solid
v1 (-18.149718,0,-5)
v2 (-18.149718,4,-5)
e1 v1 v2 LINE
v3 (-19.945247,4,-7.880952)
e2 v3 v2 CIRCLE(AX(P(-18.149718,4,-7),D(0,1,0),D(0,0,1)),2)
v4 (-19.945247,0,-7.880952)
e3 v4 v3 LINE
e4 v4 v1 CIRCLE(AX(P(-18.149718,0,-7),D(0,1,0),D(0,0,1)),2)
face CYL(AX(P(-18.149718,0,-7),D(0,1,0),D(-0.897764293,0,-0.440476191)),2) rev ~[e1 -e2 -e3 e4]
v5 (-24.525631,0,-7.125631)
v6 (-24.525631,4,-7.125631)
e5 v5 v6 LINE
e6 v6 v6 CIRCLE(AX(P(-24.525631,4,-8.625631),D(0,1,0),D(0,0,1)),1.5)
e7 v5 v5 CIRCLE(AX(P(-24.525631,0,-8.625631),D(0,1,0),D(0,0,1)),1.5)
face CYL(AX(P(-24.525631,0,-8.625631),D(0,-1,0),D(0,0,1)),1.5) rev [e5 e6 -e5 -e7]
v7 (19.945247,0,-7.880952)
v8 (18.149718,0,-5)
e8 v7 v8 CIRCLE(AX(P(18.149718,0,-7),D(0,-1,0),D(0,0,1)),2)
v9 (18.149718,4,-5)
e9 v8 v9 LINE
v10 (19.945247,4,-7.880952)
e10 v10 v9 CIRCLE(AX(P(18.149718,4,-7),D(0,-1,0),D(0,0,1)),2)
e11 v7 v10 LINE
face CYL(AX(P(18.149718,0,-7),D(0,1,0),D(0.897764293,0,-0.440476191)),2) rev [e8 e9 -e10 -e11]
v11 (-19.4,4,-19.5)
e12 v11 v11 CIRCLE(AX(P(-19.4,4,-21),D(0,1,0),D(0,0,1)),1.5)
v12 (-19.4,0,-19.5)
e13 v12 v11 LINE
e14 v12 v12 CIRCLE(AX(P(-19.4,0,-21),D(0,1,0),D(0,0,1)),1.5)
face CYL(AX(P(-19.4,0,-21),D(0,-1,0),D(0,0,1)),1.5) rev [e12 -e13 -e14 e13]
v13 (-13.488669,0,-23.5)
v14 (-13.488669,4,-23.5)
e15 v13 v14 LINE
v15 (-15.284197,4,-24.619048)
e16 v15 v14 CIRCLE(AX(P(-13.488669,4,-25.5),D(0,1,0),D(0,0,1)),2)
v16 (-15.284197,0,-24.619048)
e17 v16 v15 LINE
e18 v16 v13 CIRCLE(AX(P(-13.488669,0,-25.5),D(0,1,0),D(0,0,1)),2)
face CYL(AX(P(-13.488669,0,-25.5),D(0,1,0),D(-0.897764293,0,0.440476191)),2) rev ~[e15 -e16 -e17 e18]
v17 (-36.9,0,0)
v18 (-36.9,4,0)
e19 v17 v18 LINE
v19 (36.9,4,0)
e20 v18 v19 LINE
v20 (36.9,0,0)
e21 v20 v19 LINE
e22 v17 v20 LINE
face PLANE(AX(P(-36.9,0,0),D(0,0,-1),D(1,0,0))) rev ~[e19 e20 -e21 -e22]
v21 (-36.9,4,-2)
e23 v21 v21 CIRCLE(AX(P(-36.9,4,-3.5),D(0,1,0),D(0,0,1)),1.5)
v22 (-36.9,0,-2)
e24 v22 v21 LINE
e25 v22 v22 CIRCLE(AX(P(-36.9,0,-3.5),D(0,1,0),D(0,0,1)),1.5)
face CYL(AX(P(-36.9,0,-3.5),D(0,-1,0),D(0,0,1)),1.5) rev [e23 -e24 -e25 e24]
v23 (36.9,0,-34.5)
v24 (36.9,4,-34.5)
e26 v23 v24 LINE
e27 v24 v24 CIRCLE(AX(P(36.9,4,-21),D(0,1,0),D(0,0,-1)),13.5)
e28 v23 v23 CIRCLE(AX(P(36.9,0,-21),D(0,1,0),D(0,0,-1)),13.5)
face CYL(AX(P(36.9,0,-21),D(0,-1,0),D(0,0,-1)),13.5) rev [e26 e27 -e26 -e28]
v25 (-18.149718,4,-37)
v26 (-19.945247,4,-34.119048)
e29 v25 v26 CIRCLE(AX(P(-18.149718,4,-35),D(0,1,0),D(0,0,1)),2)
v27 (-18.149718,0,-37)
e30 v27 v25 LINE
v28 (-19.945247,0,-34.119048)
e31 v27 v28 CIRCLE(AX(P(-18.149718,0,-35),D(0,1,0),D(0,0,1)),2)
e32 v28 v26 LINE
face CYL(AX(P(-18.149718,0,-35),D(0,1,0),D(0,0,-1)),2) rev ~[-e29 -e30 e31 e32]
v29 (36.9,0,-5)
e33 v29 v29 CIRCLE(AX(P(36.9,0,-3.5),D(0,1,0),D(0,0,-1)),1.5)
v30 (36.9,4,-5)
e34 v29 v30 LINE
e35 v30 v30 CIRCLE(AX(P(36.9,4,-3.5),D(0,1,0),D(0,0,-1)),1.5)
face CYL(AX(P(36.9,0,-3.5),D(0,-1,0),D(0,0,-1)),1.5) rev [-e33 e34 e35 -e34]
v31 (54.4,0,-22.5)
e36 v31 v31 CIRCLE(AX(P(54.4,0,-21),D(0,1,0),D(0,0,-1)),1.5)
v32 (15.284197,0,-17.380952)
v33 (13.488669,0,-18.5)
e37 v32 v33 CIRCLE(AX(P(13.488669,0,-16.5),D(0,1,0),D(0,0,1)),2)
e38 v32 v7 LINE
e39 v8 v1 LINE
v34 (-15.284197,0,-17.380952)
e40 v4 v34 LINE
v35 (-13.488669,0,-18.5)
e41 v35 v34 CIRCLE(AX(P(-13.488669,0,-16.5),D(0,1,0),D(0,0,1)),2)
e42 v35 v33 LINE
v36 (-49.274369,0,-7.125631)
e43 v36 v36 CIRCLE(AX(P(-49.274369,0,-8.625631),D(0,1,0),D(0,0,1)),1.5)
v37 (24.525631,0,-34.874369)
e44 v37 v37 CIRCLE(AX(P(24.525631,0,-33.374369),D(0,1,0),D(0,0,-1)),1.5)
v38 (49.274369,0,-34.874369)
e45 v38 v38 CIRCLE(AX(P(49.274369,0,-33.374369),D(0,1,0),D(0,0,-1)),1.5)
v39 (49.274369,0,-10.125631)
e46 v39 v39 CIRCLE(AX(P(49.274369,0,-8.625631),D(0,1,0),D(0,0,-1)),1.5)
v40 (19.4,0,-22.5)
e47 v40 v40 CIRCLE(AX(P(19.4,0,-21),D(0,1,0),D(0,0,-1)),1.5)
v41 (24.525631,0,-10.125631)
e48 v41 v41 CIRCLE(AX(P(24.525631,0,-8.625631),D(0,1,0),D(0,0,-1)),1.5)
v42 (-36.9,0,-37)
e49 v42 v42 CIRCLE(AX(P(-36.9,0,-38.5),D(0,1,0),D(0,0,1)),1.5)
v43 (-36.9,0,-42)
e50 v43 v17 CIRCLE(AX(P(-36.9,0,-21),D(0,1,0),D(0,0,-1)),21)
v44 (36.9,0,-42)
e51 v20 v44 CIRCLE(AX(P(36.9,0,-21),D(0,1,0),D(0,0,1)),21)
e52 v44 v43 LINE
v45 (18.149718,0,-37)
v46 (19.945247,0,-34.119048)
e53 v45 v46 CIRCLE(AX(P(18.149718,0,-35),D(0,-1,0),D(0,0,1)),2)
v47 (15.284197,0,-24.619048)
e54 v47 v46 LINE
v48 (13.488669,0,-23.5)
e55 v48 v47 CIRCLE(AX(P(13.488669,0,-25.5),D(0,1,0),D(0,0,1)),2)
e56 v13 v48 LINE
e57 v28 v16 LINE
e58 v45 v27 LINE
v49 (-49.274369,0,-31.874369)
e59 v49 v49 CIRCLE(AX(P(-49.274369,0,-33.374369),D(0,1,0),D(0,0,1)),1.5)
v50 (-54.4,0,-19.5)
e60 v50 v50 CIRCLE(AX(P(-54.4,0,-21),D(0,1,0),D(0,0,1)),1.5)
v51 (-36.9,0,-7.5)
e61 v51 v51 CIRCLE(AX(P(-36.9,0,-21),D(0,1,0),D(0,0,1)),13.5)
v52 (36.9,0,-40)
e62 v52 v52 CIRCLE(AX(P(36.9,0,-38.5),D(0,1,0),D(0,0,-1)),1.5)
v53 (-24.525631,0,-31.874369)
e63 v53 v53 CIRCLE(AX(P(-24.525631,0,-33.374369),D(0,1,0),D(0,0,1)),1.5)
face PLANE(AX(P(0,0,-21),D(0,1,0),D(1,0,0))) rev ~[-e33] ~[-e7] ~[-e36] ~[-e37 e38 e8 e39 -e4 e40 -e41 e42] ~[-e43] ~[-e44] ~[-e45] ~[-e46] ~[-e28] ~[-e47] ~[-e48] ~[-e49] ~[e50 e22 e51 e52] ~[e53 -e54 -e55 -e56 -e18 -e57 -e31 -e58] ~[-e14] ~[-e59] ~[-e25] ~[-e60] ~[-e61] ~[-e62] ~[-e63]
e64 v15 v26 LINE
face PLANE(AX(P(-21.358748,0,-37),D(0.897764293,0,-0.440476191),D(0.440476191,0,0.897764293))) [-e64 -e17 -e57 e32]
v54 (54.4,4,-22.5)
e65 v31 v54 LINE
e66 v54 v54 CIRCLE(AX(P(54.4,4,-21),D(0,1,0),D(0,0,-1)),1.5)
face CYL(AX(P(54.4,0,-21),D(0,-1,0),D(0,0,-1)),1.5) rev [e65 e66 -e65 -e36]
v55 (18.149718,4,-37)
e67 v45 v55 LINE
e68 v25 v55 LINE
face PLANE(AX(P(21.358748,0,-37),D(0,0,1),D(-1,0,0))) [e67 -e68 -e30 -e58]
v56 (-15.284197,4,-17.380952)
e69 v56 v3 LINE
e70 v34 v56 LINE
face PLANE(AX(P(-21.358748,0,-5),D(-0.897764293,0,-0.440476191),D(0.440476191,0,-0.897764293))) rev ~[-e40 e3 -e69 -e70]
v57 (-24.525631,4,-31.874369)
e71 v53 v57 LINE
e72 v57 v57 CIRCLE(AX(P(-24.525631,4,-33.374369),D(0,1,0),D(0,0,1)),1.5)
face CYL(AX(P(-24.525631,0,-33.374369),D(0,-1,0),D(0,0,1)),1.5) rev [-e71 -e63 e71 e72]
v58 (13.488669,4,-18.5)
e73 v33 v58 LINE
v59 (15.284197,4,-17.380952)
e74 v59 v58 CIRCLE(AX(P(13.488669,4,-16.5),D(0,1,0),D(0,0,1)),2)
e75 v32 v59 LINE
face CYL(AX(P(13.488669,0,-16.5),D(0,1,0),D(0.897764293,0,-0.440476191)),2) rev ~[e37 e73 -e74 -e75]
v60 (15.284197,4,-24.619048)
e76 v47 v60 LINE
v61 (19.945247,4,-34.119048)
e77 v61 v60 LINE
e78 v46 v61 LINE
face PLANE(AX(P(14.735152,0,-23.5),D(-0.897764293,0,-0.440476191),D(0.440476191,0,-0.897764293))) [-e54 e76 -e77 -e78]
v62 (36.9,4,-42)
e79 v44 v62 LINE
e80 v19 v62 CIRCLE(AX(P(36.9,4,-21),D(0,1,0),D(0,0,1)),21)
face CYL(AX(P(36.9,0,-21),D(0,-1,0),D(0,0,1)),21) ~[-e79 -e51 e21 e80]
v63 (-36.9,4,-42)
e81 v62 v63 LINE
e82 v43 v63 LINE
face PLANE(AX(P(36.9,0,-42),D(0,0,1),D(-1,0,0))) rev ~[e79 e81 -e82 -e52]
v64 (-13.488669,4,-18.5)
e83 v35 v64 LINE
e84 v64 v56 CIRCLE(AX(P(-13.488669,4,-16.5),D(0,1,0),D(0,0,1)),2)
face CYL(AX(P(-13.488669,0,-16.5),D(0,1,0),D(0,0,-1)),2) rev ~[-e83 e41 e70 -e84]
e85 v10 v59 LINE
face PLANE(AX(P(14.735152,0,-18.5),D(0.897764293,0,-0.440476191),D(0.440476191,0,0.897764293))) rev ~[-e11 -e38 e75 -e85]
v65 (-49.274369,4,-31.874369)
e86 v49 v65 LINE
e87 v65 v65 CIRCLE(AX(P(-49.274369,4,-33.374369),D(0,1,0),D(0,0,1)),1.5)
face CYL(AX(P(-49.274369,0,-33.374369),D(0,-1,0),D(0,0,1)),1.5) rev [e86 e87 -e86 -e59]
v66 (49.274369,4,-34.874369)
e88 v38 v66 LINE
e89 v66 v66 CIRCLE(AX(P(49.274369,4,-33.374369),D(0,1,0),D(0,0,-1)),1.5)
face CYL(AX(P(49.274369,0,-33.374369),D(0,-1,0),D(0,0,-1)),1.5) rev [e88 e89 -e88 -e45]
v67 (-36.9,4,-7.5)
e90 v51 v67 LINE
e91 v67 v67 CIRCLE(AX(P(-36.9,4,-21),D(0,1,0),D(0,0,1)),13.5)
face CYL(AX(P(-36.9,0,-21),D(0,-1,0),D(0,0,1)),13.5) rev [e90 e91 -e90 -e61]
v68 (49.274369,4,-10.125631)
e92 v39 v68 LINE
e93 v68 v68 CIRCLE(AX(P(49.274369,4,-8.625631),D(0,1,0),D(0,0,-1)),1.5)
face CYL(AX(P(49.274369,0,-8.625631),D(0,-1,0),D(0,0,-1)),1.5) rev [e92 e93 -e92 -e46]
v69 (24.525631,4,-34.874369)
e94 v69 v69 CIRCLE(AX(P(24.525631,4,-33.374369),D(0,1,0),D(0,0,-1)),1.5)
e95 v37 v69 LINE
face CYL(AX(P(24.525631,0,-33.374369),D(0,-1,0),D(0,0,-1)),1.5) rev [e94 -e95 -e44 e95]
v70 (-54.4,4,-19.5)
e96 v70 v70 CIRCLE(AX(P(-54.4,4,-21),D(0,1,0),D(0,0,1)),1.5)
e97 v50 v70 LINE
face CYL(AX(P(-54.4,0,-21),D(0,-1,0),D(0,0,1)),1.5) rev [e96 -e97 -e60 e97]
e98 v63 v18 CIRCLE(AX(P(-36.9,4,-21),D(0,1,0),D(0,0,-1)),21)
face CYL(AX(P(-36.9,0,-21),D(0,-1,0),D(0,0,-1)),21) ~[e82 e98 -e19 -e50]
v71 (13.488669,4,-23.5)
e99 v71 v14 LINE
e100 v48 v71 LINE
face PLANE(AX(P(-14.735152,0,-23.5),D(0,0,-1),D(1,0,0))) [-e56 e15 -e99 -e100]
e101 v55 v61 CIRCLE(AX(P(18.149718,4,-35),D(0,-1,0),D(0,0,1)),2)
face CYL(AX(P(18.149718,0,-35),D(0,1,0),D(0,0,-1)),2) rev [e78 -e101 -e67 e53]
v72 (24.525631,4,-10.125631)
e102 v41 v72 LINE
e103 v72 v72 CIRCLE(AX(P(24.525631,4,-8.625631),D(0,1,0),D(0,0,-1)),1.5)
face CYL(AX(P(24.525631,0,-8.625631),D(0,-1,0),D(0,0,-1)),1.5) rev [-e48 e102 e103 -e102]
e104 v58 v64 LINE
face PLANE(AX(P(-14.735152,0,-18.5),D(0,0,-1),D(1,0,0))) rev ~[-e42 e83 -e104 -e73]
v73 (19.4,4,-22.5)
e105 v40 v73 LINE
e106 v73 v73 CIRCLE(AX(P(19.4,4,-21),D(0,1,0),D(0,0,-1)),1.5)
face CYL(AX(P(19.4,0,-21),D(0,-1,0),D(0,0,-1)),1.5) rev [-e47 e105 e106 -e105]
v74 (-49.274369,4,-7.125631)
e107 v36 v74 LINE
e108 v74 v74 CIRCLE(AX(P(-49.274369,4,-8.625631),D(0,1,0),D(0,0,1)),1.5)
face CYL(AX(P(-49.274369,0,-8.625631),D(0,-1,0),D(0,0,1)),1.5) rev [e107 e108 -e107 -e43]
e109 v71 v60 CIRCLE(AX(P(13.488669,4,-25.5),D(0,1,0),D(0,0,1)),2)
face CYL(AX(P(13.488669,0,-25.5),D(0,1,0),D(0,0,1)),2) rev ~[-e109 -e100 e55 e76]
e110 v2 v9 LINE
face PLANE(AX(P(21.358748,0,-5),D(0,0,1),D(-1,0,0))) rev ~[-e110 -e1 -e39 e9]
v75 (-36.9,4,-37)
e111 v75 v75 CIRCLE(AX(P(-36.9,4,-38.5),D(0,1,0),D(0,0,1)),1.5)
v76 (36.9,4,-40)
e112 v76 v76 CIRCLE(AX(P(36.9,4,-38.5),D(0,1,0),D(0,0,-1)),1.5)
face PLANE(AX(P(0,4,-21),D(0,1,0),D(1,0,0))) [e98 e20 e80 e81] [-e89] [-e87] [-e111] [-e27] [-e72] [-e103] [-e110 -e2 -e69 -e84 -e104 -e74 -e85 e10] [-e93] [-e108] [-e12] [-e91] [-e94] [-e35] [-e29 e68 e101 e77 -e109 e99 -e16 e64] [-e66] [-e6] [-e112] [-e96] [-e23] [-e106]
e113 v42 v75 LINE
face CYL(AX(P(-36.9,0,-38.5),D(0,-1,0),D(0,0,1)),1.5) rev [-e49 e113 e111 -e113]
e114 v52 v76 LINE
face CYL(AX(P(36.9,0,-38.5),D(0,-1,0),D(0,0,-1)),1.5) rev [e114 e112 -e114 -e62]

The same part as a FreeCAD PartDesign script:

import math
import FreeCAD as App
import Part
import Sketcher

V = App.Vector
Q = App.Units.Quantity


def edges_at(feature, points):
    """Names of the edges that pass closest to the given points."""
    edges = feature.Shape.Edges
    near = lambda p: min(range(len(edges)), key=lambda i: edges[i].distToShape(Part.Vertex(*p))[0])
    return sorted({f"Edge{near(p) + 1}" for p in points})


def add_polygon(sketch, points):
    """Adds a closed chain of lines whose ends are joined by coincident constraints."""
    first, n = sketch.GeometryCount, len(points)
    for a, b in zip(points, points[1:] + points[:1]):
        sketch.addGeometry(Part.LineSegment(App.Vector(*a, 0), App.Vector(*b, 0)), False)
    for i in range(n):
        sketch.addConstraint(Sketcher.Constraint("Coincident", first + i, 2, first + (i + 1) % n, 1))

doc = App.newDocument("Part")
params = doc.addObject("Spreadsheet::Sheet", "Params")
for row, (alias, value) in enumerate([
    ("sketch1_diameter", "3 mm"),
    ("sketch1_diameter2", "27 mm"),
    ("sketch1_radius", "21 mm"),
    ("sketch1_width", "73.8 mm"),
    ("pad1_length", "4 mm"),
    ("fillet_radius", "2 mm"),
], start=1):
    params.set(f"A{row}", alias)
    params.set(f"B{row}", "=" + value)
    params.setAlias(f"B{row}", alias)

body = doc.addObject("PartDesign::Body", "Body")

# Sketch on XZ plane
sketch1 = body.newObject("Sketcher::SketchObject", "Sketch")
sketch1.AttachmentSupport = (doc.getObject("XZ_Plane"), [""])
sketch1.MapMode = "FlatFace"
sketch1.addGeometry([
    Part.LineSegment(V(36.9, -42, 0), V(-36.9, -42, 0)),  # 0
    Part.ArcOfCircle(Part.Circle(V(-36.9, -21, 0), V(0, 0, 1), 21), math.radians(90), math.radians(270)),  # 1
    Part.LineSegment(V(-36.9, 0, 0), V(36.9, 0, 0)),  # 2
    Part.ArcOfCircle(Part.Circle(V(36.9, -21, 0), V(0, 0, 1), 21), math.radians(-90), math.radians(90)),  # 3
    Part.Circle(V(-36.9, -3.5, 0), V(0, 0, 1), 1.5),  # 4
    Part.Circle(V(-49.3, -8.6, 0), V(0, 0, 1), 1.5),  # 5
    Part.Circle(V(-24.5, -8.6, 0), V(0, 0, 1), 1.5),  # 6
    Part.Circle(V(24.5, -8.6, 0), V(0, 0, 1), 1.5),  # 7
    Part.Circle(V(36.9, -3.5, 0), V(0, 0, 1), 1.5),  # 8
    Part.Circle(V(49.3, -8.6, 0), V(0, 0, 1), 1.5),  # 9
    Part.Circle(V(-54.4, -21, 0), V(0, 0, 1), 1.5),  # 10
    Part.Circle(V(-36.9, -21, 0), V(0, 0, 1), 13.5),  # 11
    Part.Circle(V(-19.4, -21, 0), V(0, 0, 1), 1.5),  # 12
    Part.Circle(V(-49.3, -33.4, 0), V(0, 0, 1), 1.5),  # 13
    Part.Circle(V(-36.9, -38.5, 0), V(0, 0, 1), 1.5),  # 14
    Part.Circle(V(-24.5, -33.4, 0), V(0, 0, 1), 1.5),  # 15
    Part.Circle(V(19.4, -21, 0), V(0, 0, 1), 1.5),  # 16
    Part.Circle(V(36.9, -21, 0), V(0, 0, 1), 13.5),  # 17
    Part.Circle(V(54.4, -21, 0), V(0, 0, 1), 1.5),  # 18
    Part.Circle(V(24.5, -33.4, 0), V(0, 0, 1), 1.5),  # 19
    Part.Circle(V(49.3, -33.4, 0), V(0, 0, 1), 1.5),  # 20
    Part.Circle(V(36.9, -38.5, 0), V(0, 0, 1), 1.5),  # 21
], False)
sketch1.addConstraint([
    Sketcher.Constraint("Tangent", 0, 2, 1, 2),
    Sketcher.Constraint("Tangent", 1, 1, 2, 1),
    Sketcher.Constraint("Tangent", 2, 2, 3, 2),
    Sketcher.Constraint("Tangent", 3, 1, 0, 1),
    Sketcher.Constraint("Horizontal", 0),
    Sketcher.Constraint("Horizontal", 2),
    Sketcher.Constraint("Coincident", 11, 3, 1, 3),
    Sketcher.Constraint("Coincident", 17, 3, 3, 3),
    Sketcher.Constraint("Equal", 4, 5),
    Sketcher.Constraint("Equal", 5, 6),
    Sketcher.Constraint("Equal", 6, 7),
    Sketcher.Constraint("Equal", 7, 8),
    Sketcher.Constraint("Equal", 8, 9),
    Sketcher.Constraint("Equal", 9, 10),
    Sketcher.Constraint("Equal", 10, 12),
    Sketcher.Constraint("Equal", 12, 13),
    Sketcher.Constraint("Equal", 13, 14),
    Sketcher.Constraint("Equal", 14, 15),
    Sketcher.Constraint("Equal", 15, 16),
    Sketcher.Constraint("Equal", 11, 17),
    Sketcher.Constraint("Equal", 16, 18),
    Sketcher.Constraint("Equal", 18, 19),
    Sketcher.Constraint("Equal", 19, 20),
    Sketcher.Constraint("Equal", 20, 21),
    Sketcher.Constraint("Symmetric", 1, 1, 2, 2, -1, 1),
    Sketcher.Constraint("Symmetric", 6, 3, 7, 3, -2),
    Sketcher.Constraint("Symmetric", 4, 3, 8, 3, -2),
    Sketcher.Constraint("Symmetric", 5, 3, 9, 3, -2),
    Sketcher.Constraint("Symmetric", 12, 3, 16, 3, -2),
    Sketcher.Constraint("Symmetric", 10, 3, 18, 3, -2),
    Sketcher.Constraint("Symmetric", 15, 3, 19, 3, -2),
    Sketcher.Constraint("Symmetric", 13, 3, 20, 3, -2),
    Sketcher.Constraint("Symmetric", 14, 3, 21, 3, -2),
    Sketcher.Constraint("Horizontal", 5, 3, 6, 3),
    Sketcher.Constraint("Horizontal", 3, 3, 10, 3),
    Sketcher.Constraint("Horizontal", 11, 3, 12, 3),
    Sketcher.Constraint("Horizontal", 13, 3, 15, 3),
    Sketcher.Constraint("Vertical", 1, 3, 4, 3),
    Sketcher.Constraint("Vertical", 5, 3, 13, 3),
    Sketcher.Constraint("Vertical", 11, 3, 14, 3),
    Sketcher.Constraint("Vertical", 6, 3, 15, 3),
    Sketcher.Constraint("Diameter", 4, Q("3 mm")),
    Sketcher.Constraint("Diameter", 11, Q("27 mm")),
    Sketcher.Constraint("Radius", 1, Q("21 mm")),
    Sketcher.Constraint("DistanceX", 0, 2, 0, 1, Q("73.8 mm")),
    Sketcher.Constraint("DistanceY", 4, 3, -1, 1, Q("3.5 mm")),
    Sketcher.Constraint("DistanceX", 10, 3, -1, 1, Q("54.4 mm")),
    Sketcher.Constraint("DistanceX", 12, 3, -1, 1, Q("19.4 mm")),
    Sketcher.Constraint("DistanceY", 14, 3, -1, 1, Q("38.5 mm")),
    Sketcher.Constraint("DistanceX", 5, 3, 7, 3, Q("73.8 mm")),
    Sketcher.Constraint("DistanceX", 5, 3, -1, 1, Q("49.274369 mm")),
    Sketcher.Constraint("DistanceY", 5, 3, -1, 1, Q("8.625631 mm")),
    Sketcher.Constraint("DistanceY", 13, 3, -1, 1, Q("33.374369 mm")),
])
sketch1.setExpression("Constraints[41]", "Params.sketch1_diameter")
sketch1.setExpression("Constraints[42]", "Params.sketch1_diameter2")
sketch1.setExpression("Constraints[43]", "Params.sketch1_radius")
sketch1.setExpression("Constraints[44]", "Params.sketch1_width")
pad1 = body.newObject("PartDesign::Pad", "Pad")
pad1.Profile = sketch1
pad1.setExpression("Length", "Params.pad1_length")
pad1.Reversed = True

# Sketch on XZ plane
sketch2 = body.newObject("Sketcher::SketchObject", "Sketch001")
sketch2.AttachmentSupport = (doc.getObject("XZ_Plane"), [""])
sketch2.MapMode = "FlatFace"
add_polygon(sketch2, [(21, -37), (-21, -37), (-15, -24), (15, -24)])  # lines 0-3
add_polygon(sketch2, [(-21, -5), (21, -5), (15, -18), (-15, -18)])  # lines 4-7
sketch2.addConstraint([
    Sketcher.Constraint("Horizontal", 0),
    Sketcher.Constraint("Horizontal", 2),
    Sketcher.Constraint("Horizontal", 4),
    Sketcher.Constraint("Horizontal", 6),
    Sketcher.Constraint("Parallel", 1, 5),
    Sketcher.Constraint("Parallel", 3, 7),
    Sketcher.Constraint("Vertical", 3, 2, 4, 2),
    Sketcher.Constraint("Vertical", 2, 2, 5, 2),
    Sketcher.Constraint("Vertical", 1, 2, 6, 2),
    Sketcher.Constraint("Vertical", 0, 2, 7, 2),
    Sketcher.Constraint("DistanceY", 0, 2, -1, 1, Q("37 mm")),
    Sketcher.Constraint("DistanceY", 4, 2, -1, 1, Q("5 mm")),
    Sketcher.Constraint("DistanceY", 2, 2, 5, 2, Q("5 mm")),
    Sketcher.Constraint("DistanceX", 0, 2, 2, 2, Q("36.0939 mm")),
    Sketcher.Constraint("DistanceX", 0, 2, 0, 1, Q("42.717496 mm")),
    Sketcher.Constraint("DistanceX", 0, 2, -1, 1, Q("21.358748 mm")),
])
pocket1 = body.newObject("PartDesign::Pocket", "Pocket")
pocket1.Profile = sketch2
pocket1.Type = "ThroughAll"
doc.recompute()

fillet = body.newObject("PartDesign::Fillet", "Fillet")
fillet.Base = (pocket1, edges_at(pocket1, [
    (-21.359, 2, -37),
    (-14.735, 2, -23.5),
    (14.735, 2, -23.5),
    (21.359, 2, -37),
    (21.359, 2, -5),
    (14.735, 2, -18.5),
    (-14.735, 2, -18.5),
    (-21.359, 2, -5),
]))
fillet.setExpression("Radius", "Params.fillet_radius")

doc.recompute()
